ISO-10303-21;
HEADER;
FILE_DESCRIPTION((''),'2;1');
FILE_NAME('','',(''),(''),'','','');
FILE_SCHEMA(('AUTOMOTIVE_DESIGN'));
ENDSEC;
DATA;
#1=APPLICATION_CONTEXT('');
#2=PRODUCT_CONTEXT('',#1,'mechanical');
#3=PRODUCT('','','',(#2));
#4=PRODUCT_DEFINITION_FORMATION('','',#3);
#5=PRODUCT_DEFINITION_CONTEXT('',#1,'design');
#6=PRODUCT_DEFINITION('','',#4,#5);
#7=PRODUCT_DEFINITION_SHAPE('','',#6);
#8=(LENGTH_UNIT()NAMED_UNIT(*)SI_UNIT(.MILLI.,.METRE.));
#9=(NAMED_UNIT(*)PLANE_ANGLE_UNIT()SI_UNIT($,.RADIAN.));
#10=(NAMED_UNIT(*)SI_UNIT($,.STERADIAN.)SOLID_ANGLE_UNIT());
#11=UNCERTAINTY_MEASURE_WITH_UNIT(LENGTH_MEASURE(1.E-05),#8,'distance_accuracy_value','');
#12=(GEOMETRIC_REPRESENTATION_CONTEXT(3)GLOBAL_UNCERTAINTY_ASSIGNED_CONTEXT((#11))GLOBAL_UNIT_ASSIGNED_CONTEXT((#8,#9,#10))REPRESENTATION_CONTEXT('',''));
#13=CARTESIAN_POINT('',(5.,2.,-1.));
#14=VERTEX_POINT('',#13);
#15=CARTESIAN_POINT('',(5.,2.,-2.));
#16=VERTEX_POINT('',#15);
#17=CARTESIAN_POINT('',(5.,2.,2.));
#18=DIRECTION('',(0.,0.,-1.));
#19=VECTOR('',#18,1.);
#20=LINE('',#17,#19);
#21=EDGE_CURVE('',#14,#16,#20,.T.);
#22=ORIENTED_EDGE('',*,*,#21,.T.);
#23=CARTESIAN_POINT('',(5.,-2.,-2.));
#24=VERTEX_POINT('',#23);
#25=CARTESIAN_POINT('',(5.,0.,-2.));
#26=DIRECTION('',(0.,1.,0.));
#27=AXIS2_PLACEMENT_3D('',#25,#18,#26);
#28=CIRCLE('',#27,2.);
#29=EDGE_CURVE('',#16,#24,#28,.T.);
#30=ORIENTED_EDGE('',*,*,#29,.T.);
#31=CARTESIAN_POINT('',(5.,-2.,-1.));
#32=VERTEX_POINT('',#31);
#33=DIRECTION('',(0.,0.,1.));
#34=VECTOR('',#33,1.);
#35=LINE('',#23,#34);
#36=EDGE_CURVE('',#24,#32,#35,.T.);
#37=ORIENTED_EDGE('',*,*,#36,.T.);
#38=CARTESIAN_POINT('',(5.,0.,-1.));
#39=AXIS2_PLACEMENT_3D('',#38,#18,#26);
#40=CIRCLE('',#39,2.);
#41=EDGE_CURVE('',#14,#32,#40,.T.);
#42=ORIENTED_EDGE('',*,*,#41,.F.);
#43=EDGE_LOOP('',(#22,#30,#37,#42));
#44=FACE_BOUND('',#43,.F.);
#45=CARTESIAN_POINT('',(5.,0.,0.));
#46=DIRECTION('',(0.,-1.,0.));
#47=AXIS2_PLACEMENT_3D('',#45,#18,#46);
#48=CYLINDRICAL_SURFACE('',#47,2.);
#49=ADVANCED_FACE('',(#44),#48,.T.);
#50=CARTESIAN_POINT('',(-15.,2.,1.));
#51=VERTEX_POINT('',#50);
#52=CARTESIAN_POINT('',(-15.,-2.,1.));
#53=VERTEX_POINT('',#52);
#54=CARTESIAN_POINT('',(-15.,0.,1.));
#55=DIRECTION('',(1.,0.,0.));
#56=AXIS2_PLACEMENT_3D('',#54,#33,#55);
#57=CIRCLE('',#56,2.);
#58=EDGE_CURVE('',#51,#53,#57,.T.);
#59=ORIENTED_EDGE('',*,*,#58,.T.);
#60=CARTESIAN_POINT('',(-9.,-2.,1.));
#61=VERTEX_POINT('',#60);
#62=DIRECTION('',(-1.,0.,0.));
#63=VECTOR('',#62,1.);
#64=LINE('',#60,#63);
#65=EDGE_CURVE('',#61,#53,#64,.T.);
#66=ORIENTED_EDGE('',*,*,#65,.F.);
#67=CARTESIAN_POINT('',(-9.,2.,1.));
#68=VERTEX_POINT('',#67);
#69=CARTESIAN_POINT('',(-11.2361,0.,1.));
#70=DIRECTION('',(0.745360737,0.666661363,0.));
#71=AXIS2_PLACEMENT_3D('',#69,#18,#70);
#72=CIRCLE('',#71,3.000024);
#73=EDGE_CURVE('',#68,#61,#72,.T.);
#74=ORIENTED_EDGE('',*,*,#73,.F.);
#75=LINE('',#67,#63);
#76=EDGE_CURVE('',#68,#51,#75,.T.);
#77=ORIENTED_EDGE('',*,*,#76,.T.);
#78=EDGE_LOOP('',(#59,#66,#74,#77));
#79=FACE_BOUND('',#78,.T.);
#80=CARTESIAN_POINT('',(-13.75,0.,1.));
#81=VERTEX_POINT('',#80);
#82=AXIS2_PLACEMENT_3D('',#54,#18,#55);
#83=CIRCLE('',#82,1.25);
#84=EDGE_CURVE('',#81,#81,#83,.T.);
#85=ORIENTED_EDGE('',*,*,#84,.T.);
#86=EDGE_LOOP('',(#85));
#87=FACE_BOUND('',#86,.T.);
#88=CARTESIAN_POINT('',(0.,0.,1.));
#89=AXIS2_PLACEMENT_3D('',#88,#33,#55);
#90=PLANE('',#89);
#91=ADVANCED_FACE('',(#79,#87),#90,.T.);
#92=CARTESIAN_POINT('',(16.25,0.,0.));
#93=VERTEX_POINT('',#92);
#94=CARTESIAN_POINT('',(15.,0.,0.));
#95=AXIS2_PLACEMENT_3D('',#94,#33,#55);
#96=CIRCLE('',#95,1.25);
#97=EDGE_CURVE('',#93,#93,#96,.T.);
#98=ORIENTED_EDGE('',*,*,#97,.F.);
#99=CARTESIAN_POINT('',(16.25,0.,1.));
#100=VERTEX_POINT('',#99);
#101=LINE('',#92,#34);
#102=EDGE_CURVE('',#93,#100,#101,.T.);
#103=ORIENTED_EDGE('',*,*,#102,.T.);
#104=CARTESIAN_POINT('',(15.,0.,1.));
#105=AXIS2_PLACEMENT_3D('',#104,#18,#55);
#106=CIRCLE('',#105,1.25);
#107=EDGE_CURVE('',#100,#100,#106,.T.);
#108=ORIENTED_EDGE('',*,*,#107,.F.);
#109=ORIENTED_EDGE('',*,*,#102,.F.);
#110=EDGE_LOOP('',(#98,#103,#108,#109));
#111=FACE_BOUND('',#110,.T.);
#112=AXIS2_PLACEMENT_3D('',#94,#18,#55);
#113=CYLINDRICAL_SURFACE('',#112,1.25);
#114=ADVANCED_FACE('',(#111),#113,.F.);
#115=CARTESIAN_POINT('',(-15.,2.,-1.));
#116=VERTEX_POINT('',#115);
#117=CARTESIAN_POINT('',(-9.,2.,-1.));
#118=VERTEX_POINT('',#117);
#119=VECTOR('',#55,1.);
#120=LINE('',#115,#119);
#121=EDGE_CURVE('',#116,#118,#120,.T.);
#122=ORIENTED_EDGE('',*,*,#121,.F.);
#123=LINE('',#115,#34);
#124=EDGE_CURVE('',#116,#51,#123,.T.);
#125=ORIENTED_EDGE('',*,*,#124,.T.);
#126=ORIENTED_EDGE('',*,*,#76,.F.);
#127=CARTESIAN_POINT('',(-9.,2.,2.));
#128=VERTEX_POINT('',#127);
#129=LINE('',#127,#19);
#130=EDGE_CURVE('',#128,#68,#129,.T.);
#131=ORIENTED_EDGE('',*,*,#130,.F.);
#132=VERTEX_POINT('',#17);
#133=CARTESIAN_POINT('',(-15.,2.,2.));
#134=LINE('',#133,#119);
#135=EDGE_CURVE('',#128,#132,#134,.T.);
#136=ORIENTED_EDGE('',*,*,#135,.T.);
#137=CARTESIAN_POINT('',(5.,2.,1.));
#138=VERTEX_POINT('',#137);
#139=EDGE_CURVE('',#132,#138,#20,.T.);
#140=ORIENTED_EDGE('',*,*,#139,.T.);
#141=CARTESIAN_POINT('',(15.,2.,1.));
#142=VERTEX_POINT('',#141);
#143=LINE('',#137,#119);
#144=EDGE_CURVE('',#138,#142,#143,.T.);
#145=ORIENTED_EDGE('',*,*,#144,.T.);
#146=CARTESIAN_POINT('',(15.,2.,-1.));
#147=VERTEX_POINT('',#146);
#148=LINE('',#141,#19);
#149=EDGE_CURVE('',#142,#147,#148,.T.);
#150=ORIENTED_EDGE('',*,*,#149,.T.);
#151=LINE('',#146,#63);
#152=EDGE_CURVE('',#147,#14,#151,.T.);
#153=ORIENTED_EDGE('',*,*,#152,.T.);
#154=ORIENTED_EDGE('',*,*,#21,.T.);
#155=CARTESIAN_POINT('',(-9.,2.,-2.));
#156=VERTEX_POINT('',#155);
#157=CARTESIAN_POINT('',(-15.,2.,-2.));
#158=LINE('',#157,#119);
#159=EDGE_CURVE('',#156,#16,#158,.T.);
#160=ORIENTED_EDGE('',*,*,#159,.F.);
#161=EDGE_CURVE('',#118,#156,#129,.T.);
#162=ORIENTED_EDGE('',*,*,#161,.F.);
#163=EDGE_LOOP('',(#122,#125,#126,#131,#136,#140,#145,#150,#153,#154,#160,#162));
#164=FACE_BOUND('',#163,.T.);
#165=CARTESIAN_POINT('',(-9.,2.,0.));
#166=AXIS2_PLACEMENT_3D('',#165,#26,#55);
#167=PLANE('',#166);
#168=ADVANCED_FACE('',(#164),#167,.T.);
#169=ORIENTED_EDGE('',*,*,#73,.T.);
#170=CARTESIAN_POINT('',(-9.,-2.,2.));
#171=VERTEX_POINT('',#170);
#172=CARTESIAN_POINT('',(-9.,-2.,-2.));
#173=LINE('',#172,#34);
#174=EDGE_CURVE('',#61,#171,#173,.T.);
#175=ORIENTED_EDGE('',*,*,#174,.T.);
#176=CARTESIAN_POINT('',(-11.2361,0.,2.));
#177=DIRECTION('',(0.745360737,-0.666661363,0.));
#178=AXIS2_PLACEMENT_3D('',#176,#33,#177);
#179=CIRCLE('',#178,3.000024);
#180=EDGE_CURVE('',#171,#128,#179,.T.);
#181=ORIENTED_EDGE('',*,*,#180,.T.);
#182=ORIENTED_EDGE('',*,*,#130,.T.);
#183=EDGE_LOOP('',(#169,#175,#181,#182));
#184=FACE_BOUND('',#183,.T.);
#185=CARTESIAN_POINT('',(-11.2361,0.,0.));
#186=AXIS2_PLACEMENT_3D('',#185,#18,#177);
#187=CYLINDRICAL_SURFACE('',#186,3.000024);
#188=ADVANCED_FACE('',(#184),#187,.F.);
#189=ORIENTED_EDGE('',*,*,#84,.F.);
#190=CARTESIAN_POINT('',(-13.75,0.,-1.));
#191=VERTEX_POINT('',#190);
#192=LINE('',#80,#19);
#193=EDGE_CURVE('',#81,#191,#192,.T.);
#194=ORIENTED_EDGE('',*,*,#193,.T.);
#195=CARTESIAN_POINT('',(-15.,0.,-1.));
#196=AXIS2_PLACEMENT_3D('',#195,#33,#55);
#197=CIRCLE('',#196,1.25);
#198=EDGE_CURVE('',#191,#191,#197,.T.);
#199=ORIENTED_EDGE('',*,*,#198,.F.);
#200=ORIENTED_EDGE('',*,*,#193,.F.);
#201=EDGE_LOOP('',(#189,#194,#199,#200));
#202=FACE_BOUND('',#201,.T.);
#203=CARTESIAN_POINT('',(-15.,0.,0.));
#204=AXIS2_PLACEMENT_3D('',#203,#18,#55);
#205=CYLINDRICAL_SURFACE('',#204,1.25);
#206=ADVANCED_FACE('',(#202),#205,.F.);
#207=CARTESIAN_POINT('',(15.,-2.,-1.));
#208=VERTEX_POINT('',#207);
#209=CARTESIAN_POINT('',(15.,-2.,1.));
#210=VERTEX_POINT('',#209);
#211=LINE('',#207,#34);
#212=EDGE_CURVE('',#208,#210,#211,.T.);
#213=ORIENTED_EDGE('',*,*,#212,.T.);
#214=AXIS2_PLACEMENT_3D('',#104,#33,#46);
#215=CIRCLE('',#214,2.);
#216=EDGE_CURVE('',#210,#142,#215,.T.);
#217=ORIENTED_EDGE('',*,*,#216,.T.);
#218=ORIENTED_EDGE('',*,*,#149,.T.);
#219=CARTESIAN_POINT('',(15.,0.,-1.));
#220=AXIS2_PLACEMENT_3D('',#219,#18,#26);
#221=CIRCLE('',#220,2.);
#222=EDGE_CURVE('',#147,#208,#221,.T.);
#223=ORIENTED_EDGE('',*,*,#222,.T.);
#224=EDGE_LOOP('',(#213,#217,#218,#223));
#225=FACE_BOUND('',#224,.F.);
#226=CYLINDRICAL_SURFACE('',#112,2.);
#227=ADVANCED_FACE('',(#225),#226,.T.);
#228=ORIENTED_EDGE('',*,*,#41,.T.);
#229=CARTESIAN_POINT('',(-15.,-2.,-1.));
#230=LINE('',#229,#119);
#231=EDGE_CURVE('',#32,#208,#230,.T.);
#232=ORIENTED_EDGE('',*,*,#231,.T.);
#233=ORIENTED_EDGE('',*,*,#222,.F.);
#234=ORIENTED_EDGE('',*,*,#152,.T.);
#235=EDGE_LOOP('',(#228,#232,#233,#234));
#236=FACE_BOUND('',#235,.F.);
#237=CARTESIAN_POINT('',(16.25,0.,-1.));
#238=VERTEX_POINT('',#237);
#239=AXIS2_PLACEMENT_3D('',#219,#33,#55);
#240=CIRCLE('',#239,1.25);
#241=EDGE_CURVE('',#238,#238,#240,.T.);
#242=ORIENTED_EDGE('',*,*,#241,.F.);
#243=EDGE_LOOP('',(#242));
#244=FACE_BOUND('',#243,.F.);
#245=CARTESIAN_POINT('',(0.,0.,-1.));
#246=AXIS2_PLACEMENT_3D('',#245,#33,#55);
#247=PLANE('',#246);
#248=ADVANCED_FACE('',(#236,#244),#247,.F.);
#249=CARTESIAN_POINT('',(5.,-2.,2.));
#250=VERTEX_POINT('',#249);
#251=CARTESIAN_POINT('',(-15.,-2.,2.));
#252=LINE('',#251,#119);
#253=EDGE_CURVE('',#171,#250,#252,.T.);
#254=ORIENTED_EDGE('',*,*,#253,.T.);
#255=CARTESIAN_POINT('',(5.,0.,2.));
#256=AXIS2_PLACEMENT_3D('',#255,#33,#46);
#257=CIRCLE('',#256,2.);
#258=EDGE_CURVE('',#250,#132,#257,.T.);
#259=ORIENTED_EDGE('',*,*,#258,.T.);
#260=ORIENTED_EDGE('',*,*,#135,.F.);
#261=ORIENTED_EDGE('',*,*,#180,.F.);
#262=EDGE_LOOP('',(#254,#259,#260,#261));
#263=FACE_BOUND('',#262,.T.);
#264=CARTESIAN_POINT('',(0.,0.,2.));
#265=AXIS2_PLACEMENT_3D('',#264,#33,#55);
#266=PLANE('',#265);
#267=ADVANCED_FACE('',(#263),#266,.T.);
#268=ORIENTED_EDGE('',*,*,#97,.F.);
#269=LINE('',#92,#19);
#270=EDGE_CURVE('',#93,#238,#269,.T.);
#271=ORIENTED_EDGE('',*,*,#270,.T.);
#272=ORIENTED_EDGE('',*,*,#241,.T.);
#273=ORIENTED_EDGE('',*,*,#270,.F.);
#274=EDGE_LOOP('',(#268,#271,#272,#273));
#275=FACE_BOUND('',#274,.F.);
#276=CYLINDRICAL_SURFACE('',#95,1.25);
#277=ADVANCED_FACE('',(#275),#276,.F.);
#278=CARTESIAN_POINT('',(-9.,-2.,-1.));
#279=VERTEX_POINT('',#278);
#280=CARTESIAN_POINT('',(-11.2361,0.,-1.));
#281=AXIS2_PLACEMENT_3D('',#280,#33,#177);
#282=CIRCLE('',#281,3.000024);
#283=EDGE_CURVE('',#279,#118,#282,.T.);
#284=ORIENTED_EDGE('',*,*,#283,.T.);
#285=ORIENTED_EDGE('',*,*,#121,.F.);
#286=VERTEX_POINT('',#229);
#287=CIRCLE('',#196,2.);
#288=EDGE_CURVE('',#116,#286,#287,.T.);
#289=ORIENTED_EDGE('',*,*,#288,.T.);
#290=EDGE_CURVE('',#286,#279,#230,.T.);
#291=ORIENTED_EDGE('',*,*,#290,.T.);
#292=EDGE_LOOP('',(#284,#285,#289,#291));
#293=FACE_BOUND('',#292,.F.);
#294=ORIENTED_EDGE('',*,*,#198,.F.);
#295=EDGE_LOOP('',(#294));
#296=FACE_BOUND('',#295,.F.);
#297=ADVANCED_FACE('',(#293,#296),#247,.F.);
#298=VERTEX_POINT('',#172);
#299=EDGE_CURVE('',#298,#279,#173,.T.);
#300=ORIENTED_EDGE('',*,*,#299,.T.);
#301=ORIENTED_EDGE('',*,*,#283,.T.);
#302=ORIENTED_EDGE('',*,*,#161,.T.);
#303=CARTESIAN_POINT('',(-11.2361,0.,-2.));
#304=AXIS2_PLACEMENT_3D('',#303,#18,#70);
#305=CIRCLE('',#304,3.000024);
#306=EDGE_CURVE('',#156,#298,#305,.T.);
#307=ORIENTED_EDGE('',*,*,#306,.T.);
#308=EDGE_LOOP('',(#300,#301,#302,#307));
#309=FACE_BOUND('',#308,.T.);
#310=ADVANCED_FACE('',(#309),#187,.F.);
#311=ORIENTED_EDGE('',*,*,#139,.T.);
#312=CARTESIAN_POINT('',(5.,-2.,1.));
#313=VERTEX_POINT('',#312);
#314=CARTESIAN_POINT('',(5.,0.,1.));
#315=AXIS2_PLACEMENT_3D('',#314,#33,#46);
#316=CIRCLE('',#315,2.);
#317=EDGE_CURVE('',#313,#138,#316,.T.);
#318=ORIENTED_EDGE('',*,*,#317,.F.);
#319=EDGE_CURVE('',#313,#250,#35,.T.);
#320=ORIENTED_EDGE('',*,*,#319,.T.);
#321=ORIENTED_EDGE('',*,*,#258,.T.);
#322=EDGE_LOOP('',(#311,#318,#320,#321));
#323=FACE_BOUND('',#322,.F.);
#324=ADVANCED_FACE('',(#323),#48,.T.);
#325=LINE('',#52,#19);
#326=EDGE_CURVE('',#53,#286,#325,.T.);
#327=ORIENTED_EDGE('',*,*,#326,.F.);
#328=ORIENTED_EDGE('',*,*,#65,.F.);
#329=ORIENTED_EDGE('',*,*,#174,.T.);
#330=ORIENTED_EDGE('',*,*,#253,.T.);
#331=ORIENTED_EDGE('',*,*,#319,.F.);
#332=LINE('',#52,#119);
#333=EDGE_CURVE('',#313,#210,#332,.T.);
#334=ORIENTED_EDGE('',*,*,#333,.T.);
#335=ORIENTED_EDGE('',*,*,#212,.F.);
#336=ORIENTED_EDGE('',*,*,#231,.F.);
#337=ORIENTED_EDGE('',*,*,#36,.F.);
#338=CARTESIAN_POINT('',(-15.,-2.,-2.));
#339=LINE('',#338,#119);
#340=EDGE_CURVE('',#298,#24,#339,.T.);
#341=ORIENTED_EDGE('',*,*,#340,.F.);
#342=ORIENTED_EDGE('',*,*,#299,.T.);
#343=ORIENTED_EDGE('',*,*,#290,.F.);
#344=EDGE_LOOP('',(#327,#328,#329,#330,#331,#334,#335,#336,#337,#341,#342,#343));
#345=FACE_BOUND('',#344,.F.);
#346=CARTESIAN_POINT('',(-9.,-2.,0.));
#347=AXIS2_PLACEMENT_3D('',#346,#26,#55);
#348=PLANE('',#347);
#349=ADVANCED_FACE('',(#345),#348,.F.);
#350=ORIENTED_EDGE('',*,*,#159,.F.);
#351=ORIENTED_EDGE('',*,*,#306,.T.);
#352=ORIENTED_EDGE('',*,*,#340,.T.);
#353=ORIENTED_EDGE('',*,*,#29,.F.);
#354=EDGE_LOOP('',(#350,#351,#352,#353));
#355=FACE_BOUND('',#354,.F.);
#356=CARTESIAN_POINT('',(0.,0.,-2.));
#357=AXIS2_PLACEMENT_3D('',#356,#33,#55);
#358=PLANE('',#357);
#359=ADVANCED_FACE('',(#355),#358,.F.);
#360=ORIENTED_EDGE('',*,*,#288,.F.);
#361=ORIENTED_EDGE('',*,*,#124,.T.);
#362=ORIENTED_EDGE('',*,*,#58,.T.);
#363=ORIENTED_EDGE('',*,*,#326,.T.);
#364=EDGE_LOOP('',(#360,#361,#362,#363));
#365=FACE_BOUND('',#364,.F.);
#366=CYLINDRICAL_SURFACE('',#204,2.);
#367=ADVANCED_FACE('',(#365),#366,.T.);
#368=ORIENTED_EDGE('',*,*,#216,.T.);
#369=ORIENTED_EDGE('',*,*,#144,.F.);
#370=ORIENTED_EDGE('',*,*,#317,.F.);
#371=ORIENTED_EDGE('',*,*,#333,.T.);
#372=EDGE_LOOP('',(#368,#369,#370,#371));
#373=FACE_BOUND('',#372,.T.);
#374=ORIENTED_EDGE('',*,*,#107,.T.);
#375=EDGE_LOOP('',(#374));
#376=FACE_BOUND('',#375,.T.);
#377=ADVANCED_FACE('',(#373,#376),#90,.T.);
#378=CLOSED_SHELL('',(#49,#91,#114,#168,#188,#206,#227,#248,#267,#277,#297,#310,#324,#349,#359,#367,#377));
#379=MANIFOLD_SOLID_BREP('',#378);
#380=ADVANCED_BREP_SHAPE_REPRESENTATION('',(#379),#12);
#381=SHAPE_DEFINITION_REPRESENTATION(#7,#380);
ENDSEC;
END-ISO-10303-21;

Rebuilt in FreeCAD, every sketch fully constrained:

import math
import FreeCAD as App
import Part
import Sketcher
Q = App.Units.Quantity

doc = App.newDocument("Part")
body = doc.addObject("PartDesign::Body", "Body")
body.AllowCompound = True

# Sketch on XY plane
sketch1 = doc.addObject("Sketcher::SketchObject", "Sketch")
body.addObject(sketch1)
sketch1.AttachmentSupport = (doc.XY_Plane, [""])
sketch1.MapMode = "FlatFace"
sketch1.addGeometry(Part.ArcOfCircle(Part.Circle(App.Vector(-11.2361, 0, 0), App.Vector(0, 0, 1), 3.000024), math.radians(-41.809907), math.radians(41.809907)), False)
sketch1.addGeometry(Part.LineSegment(App.Vector(-9, 2, 0), App.Vector(-15, 2, 0)), False)
sketch1.addGeometry(Part.ArcOfCircle(Part.Circle(App.Vector(-15, 0, 0), App.Vector(0, 0, 1), 2), math.radians(90), math.radians(270)), False)
sketch1.addGeometry(Part.LineSegment(App.Vector(-15, -2, 0), App.Vector(-9, -2, 0)), False)
sketch1.addGeometry(Part.Circle(App.Vector(-15, 0, 0), App.Vector(0, 0, 1), 1.25), False)
sketch1.addGeometry(Part.ArcOfCircle(Part.Circle(App.Vector(5, 0, 0), App.Vector(0, 0, 1), 2), math.radians(-90), math.radians(90)), False)
sketch1.addGeometry(Part.LineSegment(App.Vector(5, -2, 0), App.Vector(15, -2, 0)), False)
sketch1.addGeometry(Part.ArcOfCircle(Part.Circle(App.Vector(15, 0, 0), App.Vector(0, 0, 1), 2), math.radians(-90), math.radians(90)), False)
sketch1.addGeometry(Part.LineSegment(App.Vector(15, 2, 0), App.Vector(5, 2, 0)), False)
sketch1.addGeometry(Part.Circle(App.Vector(15, 0, 0), App.Vector(0, 0, 1), 1.25), False)
sketch1.addConstraint(Sketcher.Constraint("Coincident", 0, 2, 1, 1))
sketch1.addConstraint(Sketcher.Constraint("Tangent", 1, 2, 2, 1))
sketch1.addConstraint(Sketcher.Constraint("Tangent", 2, 2, 3, 1))
sketch1.addConstraint(Sketcher.Constraint("Coincident", 3, 2, 0, 1))
sketch1.addConstraint(Sketcher.Constraint("Tangent", 5, 1, 6, 1))
sketch1.addConstraint(Sketcher.Constraint("Tangent", 6, 2, 7, 1))
sketch1.addConstraint(Sketcher.Constraint("Tangent", 7, 2, 8, 1))
sketch1.addConstraint(Sketcher.Constraint("Tangent", 8, 2, 5, 2))
sketch1.addConstraint(Sketcher.Constraint("Horizontal", 1))
sketch1.addConstraint(Sketcher.Constraint("Horizontal", 3))
sketch1.addConstraint(Sketcher.Constraint("Horizontal", 6))
sketch1.addConstraint(Sketcher.Constraint("Horizontal", 8))
sketch1.addConstraint(Sketcher.Constraint("Coincident", 4, 3, 2, 3))
sketch1.addConstraint(Sketcher.Constraint("Coincident", 9, 3, 7, 3))
sketch1.addConstraint(Sketcher.Constraint("Equal", 2, 5))
sketch1.addConstraint(Sketcher.Constraint("Equal", 4, 9))
sketch1.addConstraint(Sketcher.Constraint("Symmetric", 2, 3, 7, 3, -1, 1))
sketch1.addConstraint(Sketcher.Constraint("Symmetric", 0, 2, 3, 2, -1))
sketch1.addConstraint(Sketcher.Constraint("Radius", 0, Q("3 mm")))
sketch1.addConstraint(Sketcher.Constraint("Radius", 2, Q("2 mm")))
sketch1.addConstraint(Sketcher.Constraint("Diameter", 4, Q("2.5 mm")))
sketch1.addConstraint(Sketcher.Constraint("DistanceX", 1, 2, 1, 1, Q("6 mm")))
sketch1.addConstraint(Sketcher.Constraint("DistanceX", 6, 1, 6, 2, Q("10 mm")))
sketch1.addConstraint(Sketcher.Constraint("DistanceX", 2, 3, -1, 1, Q("15 mm")))
pad1 = doc.addObject("PartDesign::Pad", "Pad")
body.addObject(pad1)
pad1.Profile = sketch1
pad1.Length = 2
pad1.Midplane = True

# Sketch on XY plane
sketch2 = doc.addObject("Sketcher::SketchObject", "Sketch001")
body.addObject(sketch2)
sketch2.AttachmentSupport = (doc.XY_Plane, [""])
sketch2.MapMode = "FlatFace"
sketch2.addGeometry(Part.ArcOfCircle(Part.Circle(App.Vector(-11.2361, 0, 0), App.Vector(0, 0, 1), 3.000024), math.radians(-41.809907), math.radians(41.809907)), False)
sketch2.addGeometry(Part.LineSegment(App.Vector(-9, -2, 0), App.Vector(5, -2, 0)), False)
sketch2.addGeometry(Part.ArcOfCircle(Part.Circle(App.Vector(5, 0, 0), App.Vector(0, 0, 1), 2), math.radians(-90), math.radians(90)), False)
sketch2.addGeometry(Part.LineSegment(App.Vector(5, 2, 0), App.Vector(-9, 2, 0)), False)
sketch2.addConstraint(Sketcher.Constraint("Coincident", 0, 1, 1, 1))
sketch2.addConstraint(Sketcher.Constraint("Tangent", 1, 2, 2, 1))
sketch2.addConstraint(Sketcher.Constraint("Tangent", 2, 2, 3, 1))
sketch2.addConstraint(Sketcher.Constraint("Coincident", 3, 2, 0, 2))
sketch2.addConstraint(Sketcher.Constraint("Horizontal", 1))
sketch2.addConstraint(Sketcher.Constraint("Horizontal", 3))
sketch2.addConstraint(Sketcher.Constraint("Symmetric", 0, 1, 3, 2, -1))
sketch2.addConstraint(Sketcher.Constraint("Radius", 0, Q("3 mm")))
sketch2.addConstraint(Sketcher.Constraint("Radius", 2, Q("2 mm")))
sketch2.addConstraint(Sketcher.Constraint("DistanceX", 1, 1, 1, 2, Q("14 mm")))
sketch2.addConstraint(Sketcher.Constraint("DistanceX", -1, 1, 2, 3, Q("5 mm")))
pad2 = doc.addObject("PartDesign::Pad", "Pad001")
body.addObject(pad2)
pad2.Profile = sketch2
pad2.Length = 4
pad2.Midplane = True

doc.recompute()
